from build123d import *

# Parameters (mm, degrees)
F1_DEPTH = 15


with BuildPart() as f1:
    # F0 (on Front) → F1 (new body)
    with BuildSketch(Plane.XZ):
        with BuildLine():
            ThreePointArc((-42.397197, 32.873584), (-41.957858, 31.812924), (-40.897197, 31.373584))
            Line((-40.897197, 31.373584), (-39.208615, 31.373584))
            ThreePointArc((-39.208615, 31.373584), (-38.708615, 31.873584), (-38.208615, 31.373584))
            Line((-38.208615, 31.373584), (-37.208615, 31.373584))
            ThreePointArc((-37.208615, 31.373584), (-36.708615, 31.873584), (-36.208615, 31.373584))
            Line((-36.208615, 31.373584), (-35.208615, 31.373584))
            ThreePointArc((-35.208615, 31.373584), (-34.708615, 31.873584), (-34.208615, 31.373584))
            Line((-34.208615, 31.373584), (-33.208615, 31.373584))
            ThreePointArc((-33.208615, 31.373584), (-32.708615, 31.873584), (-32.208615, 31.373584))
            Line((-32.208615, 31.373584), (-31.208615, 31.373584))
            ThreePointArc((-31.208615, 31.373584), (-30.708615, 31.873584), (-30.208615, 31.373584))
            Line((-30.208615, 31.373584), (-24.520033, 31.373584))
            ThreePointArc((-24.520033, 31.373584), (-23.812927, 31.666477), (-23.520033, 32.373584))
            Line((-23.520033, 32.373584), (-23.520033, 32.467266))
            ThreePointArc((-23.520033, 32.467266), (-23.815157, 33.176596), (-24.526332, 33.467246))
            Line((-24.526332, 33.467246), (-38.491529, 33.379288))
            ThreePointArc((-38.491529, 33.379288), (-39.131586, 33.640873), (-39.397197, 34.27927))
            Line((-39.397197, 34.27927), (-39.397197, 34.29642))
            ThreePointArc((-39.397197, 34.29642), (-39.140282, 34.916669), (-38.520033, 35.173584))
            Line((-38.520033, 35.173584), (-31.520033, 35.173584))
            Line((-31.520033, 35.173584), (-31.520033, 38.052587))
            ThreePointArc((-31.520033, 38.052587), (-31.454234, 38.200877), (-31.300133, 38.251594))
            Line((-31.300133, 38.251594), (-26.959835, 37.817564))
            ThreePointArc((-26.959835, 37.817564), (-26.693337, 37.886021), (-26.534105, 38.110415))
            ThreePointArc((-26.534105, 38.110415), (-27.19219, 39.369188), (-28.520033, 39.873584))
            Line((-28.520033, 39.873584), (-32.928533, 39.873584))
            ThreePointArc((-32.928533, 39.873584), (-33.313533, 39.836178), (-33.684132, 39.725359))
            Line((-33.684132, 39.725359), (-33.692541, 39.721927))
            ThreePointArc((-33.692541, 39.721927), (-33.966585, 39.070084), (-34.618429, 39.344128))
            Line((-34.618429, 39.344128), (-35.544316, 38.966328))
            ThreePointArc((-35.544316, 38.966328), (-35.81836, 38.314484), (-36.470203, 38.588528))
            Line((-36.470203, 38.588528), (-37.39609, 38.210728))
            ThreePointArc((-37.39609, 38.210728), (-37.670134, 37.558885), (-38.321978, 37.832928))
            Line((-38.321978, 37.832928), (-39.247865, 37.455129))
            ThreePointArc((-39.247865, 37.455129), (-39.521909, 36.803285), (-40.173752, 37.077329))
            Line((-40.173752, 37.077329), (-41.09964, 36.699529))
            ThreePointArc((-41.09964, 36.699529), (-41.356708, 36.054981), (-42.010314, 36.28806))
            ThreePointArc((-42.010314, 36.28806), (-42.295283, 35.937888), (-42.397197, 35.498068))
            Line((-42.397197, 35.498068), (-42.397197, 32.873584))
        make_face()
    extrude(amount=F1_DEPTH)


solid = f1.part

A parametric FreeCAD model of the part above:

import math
import FreeCAD as App
import Part
import Sketcher

V = App.Vector

doc = App.newDocument("Part")
body = doc.addObject("PartDesign::Body", "Body")

sketch1 = body.newObject("Sketcher::SketchObject", "Sketch")
sketch1.AttachmentSupport = (doc.getObject("XZ_Plane"), [""])
sketch1.MapMode = "FlatFace"
sketch1.addGeometry(Part.ArcOfCircle(Part.Circle(V(-40.897, 32.874, 0), V(0, 0, 1), 1.5), math.radians(180), math.radians(270)), False)
sketch1.addGeometry(Part.LineSegment(V(-40.897, 31.374, 0), V(-39.209, 31.374, 0)), False)
sketch1.addGeometry(Part.ArcOfCircle(Part.Circle(V(-38.709, 31.374, 0), V(0, 0, 1), 0.5), math.radians(0), math.radians(180)), False)
sketch1.addGeometry(Part.LineSegment(V(-38.209, 31.374, 0), V(-37.209, 31.374, 0)), False)
sketch1.addGeometry(Part.ArcOfCircle(Part.Circle(V(-36.709, 31.374, 0), V(0, 0, 1), 0.5), math.radians(0), math.radians(180)), False)
sketch1.addGeometry(Part.LineSegment(V(-36.209, 31.374, 0), V(-35.209, 31.374, 0)), False)
sketch1.addGeometry(Part.ArcOfCircle(Part.Circle(V(-34.709, 31.374, 0), V(0, 0, 1), 0.5), math.radians(0), math.radians(180)), False)
sketch1.addGeometry(Part.LineSegment(V(-34.209, 31.374, 0), V(-33.209, 31.374, 0)), False)
sketch1.addGeometry(Part.ArcOfCircle(Part.Circle(V(-32.709, 31.374, 0), V(0, 0, 1), 0.5), math.radians(0), math.radians(180)), False)
sketch1.addGeometry(Part.LineSegment(V(-32.209, 31.374, 0), V(-31.209, 31.374, 0)), False)
sketch1.addGeometry(Part.ArcOfCircle(Part.Circle(V(-30.709, 31.374, 0), V(0, 0, 1), 0.5), math.radians(0), math.radians(180)), False)
sketch1.addGeometry(Part.LineSegment(V(-30.209, 31.374, 0), V(-24.52, 31.374, 0)), False)
sketch1.addGeometry(Part.ArcOfCircle(Part.Circle(V(-24.52, 32.374, 0), V(0, 0, 1), 1), math.radians(-90), math.radians(0)), False)
sketch1.addGeometry(Part.LineSegment(V(-23.52, 32.374, 0), V(-23.52, 32.467, 0)), False)
sketch1.addGeometry(Part.ArcOfCircle(Part.Circle(V(-24.52, 32.467, 0), V(0, 0, 1), 1), math.radians(0), math.radians(90)), False)
sketch1.addGeometry(Part.LineSegment(V(-24.526, 33.467, 0), V(-38.492, 33.379, 0)), False)
sketch1.addGeometry(Part.ArcOfCircle(Part.Circle(V(-38.497, 34.279, 0), V(0, 0, 1), 0.9), math.radians(180), math.radians(270)), False)
sketch1.addGeometry(Part.LineSegment(V(-39.397, 34.279, 0), V(-39.397, 34.296, 0)), False)
sketch1.addGeometry(Part.ArcOfCircle(Part.Circle(V(-38.52, 34.296, 0), V(0, 0, 1), 0.877), math.radians(90), math.radians(180)), False)
sketch1.addGeometry(Part.LineSegment(V(-38.52, 35.174, 0), V(-31.52, 35.174, 0)), False)
sketch1.addGeometry(Part.LineSegment(V(-31.52, 35.174, 0), V(-31.52, 38.053, 0)), False)
sketch1.addGeometry(Part.ArcOfCircle(Part.Circle(V(-31.32, 38.053, 0), V(0, 0, 1), 0.2), math.radians(84), math.radians(180)), False)
sketch1.addGeometry(Part.LineSegment(V(-31.3, 38.252, 0), V(-26.96, 37.818, 0)), False)
sketch1.addGeometry(Part.ArcOfCircle(Part.Circle(V(-26.92, 38.216, 0), V(0, 0, 1), 0.4), math.radians(-96), math.radians(-15)), False)
sketch1.addGeometry(Part.ArcOfCircle(Part.Circle(V(-28.52, 37.874, 0), V(0, 0, 1), 2), math.radians(7), math.radians(90)), False)
sketch1.addGeometry(Part.LineSegment(V(-28.52, 39.874, 0), V(-32.929, 39.874, 0)), False)
sketch1.addGeometry(Part.ArcOfCircle(Part.Circle(V(-32.929, 37.874, 0), V(0, 0, 1), 2), math.radians(90), math.radians(112)), False)
sketch1.addGeometry(Part.LineSegment(V(-33.684, 39.725, 0), V(-33.693, 39.722, 0)), False)
sketch1.addGeometry(Part.ArcOfCircle(Part.Circle(V(-34.155, 39.533, 0), V(0, 0, 1), 0.5), math.radians(-158), math.radians(22)), False)
sketch1.addGeometry(Part.LineSegment(V(-34.618, 39.344, 0), V(-35.544, 38.966, 0)), False)
sketch1.addGeometry(Part.ArcOfCircle(Part.Circle(V(-36.007, 38.777, 0), V(0, 0, 1), 0.5), math.radians(-158), math.radians(22)), False)
sketch1.addGeometry(Part.LineSegment(V(-36.47, 38.589, 0), V(-37.396, 38.211, 0)), False)
sketch1.addGeometry(Part.ArcOfCircle(Part.Circle(V(-37.859, 38.022, 0), V(0, 0, 1), 0.5), math.radians(-158), math.radians(22)), False)
sketch1.addGeometry(Part.LineSegment(V(-38.322, 37.833, 0), V(-39.248, 37.455, 0)), False)
sketch1.addGeometry(Part.ArcOfCircle(Part.Circle(V(-39.711, 37.266, 0), V(0, 0, 1), 0.5), math.radians(-158), math.radians(22)), False)
sketch1.addGeometry(Part.LineSegment(V(-40.174, 37.077, 0), V(-41.1, 36.7, 0)), False)
sketch1.addGeometry(Part.ArcOfCircle(Part.Circle(V(-41.563, 36.511, 0), V(0, 0, 1), 0.5), math.radians(-154), math.radians(22)), False)
sketch1.addGeometry(Part.ArcOfCircle(Part.Circle(V(-41.397, 35.498, 0), V(0, 0, 1), 1), math.radians(128), math.radians(180)), False)
sketch1.addGeometry(Part.LineSegment(V(-42.397, 35.498, 0), V(-42.397, 32.874, 0)), False)
sketch1.addConstraint(Sketcher.Constraint("Tangent", 0, 2, 1, 1))
sketch1.addConstraint(Sketcher.Constraint("Coincident", 1, 2, 2, 2))
sketch1.addConstraint(Sketcher.Constraint("Coincident", 2, 1, 3, 1))
sketch1.addConstraint(Sketcher.Constraint("Coincident", 3, 2, 4, 2))
sketch1.addConstraint(Sketcher.Constraint("Coincident", 4, 1, 5, 1))
sketch1.addConstraint(Sketcher.Constraint("Coincident", 5, 2, 6, 2))
sketch1.addConstraint(Sketcher.Constraint("Coincident", 6, 1, 7, 1))
sketch1.addConstraint(Sketcher.Constraint("Coincident", 7, 2, 8, 2))
sketch1.addConstraint(Sketcher.Constraint("Coincident", 8, 1, 9, 1))
sketch1.addConstraint(Sketcher.Constraint("Coincident", 9, 2, 10, 2))
sketch1.addConstraint(Sketcher.Constraint("Coincident", 10, 1, 11, 1))
sketch1.addConstraint(Sketcher.Constraint("Tangent", 11, 2, 12, 1))
sketch1.addConstraint(Sketcher.Constraint("Tangent", 12, 2, 13, 1))
sketch1.addConstraint(Sketcher.Constraint("Tangent", 13, 2, 14, 1))
sketch1.addConstraint(Sketcher.Constraint("Tangent", 14, 2, 15, 1))
sketch1.addConstraint(Sketcher.Constraint("Tangent", 15, 2, 16, 2))
sketch1.addConstraint(Sketcher.Constraint("Tangent", 16, 1, 17, 1))
sketch1.addConstraint(Sketcher.Constraint("Tangent", 17, 2, 18, 2))
sketch1.addConstraint(Sketcher.Constraint("Tangent", 18, 1, 19, 1))
sketch1.addConstraint(Sketcher.Constraint("Coincident", 19, 2, 20, 1))
sketch1.addConstraint(Sketcher.Constraint("Coincident", 20, 2, 21, 2))
sketch1.addConstraint(Sketcher.Constraint("Coincident", 21, 1, 22, 1))
sketch1.addConstraint(Sketcher.Constraint("Coincident", 22, 2, 23, 1))
sketch1.addConstraint(Sketcher.Constraint("Coincident", 23, 2, 24, 1))
sketch1.addConstraint(Sketcher.Constraint("Tangent", 24, 2, 25, 1))
sketch1.addConstraint(Sketcher.Constraint("Tangent", 25, 2, 26, 1))
sketch1.addConstraint(Sketcher.Constraint("Coincident", 26, 2, 27, 1))
sketch1.addConstraint(Sketcher.Constraint("Coincident", 27, 2, 28, 2))
sketch1.addConstraint(Sketcher.Constraint("Coincident", 28, 1, 29, 1))
sketch1.addConstraint(Sketcher.Constraint("Coincident", 29, 2, 30, 2))
sketch1.addConstraint(Sketcher.Constraint("Coincident", 30, 1, 31, 1))
sketch1.addConstraint(Sketcher.Constraint("Coincident", 31, 2, 32, 2))
sketch1.addConstraint(Sketcher.Constraint("Coincident", 32, 1, 33, 1))
sketch1.addConstraint(Sketcher.Constraint("Coincident", 33, 2, 34, 2))
sketch1.addConstraint(Sketcher.Constraint("Coincident", 34, 1, 35, 1))
sketch1.addConstraint(Sketcher.Constraint("Coincident", 35, 2, 36, 2))
sketch1.addConstraint(Sketcher.Constraint("Coincident", 36, 1, 37, 1))
sketch1.addConstraint(Sketcher.Constraint("Tangent", 37, 2, 38, 1))
sketch1.addConstraint(Sketcher.Constraint("Tangent", 38, 2, 0, 1))
sketch1.addConstraint(Sketcher.Constraint("Horizontal", 1))
sketch1.addConstraint(Sketcher.Constraint("Horizontal", 3))
sketch1.addConstraint(Sketcher.Constraint("Horizontal", 5))
sketch1.addConstraint(Sketcher.Constraint("Horizontal", 7))
sketch1.addConstraint(Sketcher.Constraint("Horizontal", 9))
sketch1.addConstraint(Sketcher.Constraint("Horizontal", 11))
sketch1.addConstraint(Sketcher.Constraint("Vertical", 13))
sketch1.addConstraint(Sketcher.Constraint("Vertical", 17))
sketch1.addConstraint(Sketcher.Constraint("Horizontal", 19))
sketch1.addConstraint(Sketcher.Constraint("Vertical", 20))
sketch1.addConstraint(Sketcher.Constraint("Horizontal", 25))
sketch1.addConstraint(Sketcher.Constraint("Vertical", 38))
sketch1.addConstraint(Sketcher.Constraint("Equal", 2, 4))
sketch1.addConstraint(Sketcher.Constraint("Equal", 4, 6))
sketch1.addConstraint(Sketcher.Constraint("Equal", 6, 8))
sketch1.addConstraint(Sketcher.Constraint("Equal", 8, 10))
sketch1.addConstraint(Sketcher.Constraint("Equal", 12, 14))
sketch1.addConstraint(Sketcher.Constraint("Equal", 24, 26))
sketch1.addConstraint(Sketcher.Constraint("Equal", 10, 28))
sketch1.addConstraint(Sketcher.Constraint("Equal", 28, 30))
sketch1.addConstraint(Sketcher.Constraint("Equal", 30, 32))
sketch1.addConstraint(Sketcher.Constraint("Equal", 32, 34))
sketch1.addConstraint(Sketcher.Constraint("Equal", 34, 36))
sketch1.addConstraint(Sketcher.Constraint("Equal", 14, 37))
sketch1.addConstraint(Sketcher.Constraint("Parallel", 29, 31))
sketch1.addConstraint(Sketcher.Constraint("Parallel", 31, 33))
sketch1.addConstraint(Sketcher.Constraint("Parallel", 33, 35))
sketch1.addConstraint(Sketcher.Constraint("Horizontal", 2, 3, 4, 3))
sketch1.addConstraint(Sketcher.Constraint("Horizontal", 4, 3, 6, 3))
sketch1.addConstraint(Sketcher.Constraint("Horizontal", 6, 3, 8, 3))
sketch1.addConstraint(Sketcher.Constraint("Horizontal", 8, 3, 10, 3))
sketch1.addConstraint(Sketcher.Constraint("Horizontal", 10, 3, 0, 2))
sketch1.addConstraint(Sketcher.Constraint("Horizontal", 1, 2, 2, 1))
sketch1.addConstraint(Sketcher.Constraint("Horizontal", 3, 2, 4, 1))
sketch1.addConstraint(Sketcher.Constraint("Horizontal", 5, 2, 6, 1))
sketch1.addConstraint(Sketcher.Constraint("Horizontal", 7, 2, 8, 1))
sketch1.addConstraint(Sketcher.Constraint("Horizontal", 9, 2, 10, 1))
sketch1.addConstraint(Sketcher.Constraint("Horizontal", 21, 3, 20, 2))
sketch1.addConstraint(Sketcher.Constraint("Equal", 3, 5))
sketch1.addConstraint(Sketcher.Constraint("Equal", 5, 7))
sketch1.addConstraint(Sketcher.Constraint("Equal", 7, 9))
sketch1.addConstraint(Sketcher.Constraint("Equal", 29, 31))
sketch1.addConstraint(Sketcher.Constraint("Equal", 31, 33))
sketch1.addConstraint(Sketcher.Constraint("Equal", 33, 35))
sketch1.addConstraint(Sketcher.Constraint("Radius", 12, 1.000001))
sketch1.addConstraint(Sketcher.Constraint("Radius", 24, 2.000001))
sketch1.addConstraint(Sketcher.Constraint("Radius", 0, 1.499999))
sketch1.addConstraint(Sketcher.Constraint("Radius", 2, 0.5))
sketch1.addConstraint(Sketcher.Constraint("Radius", 16, 0.9))
sketch1.addConstraint(Sketcher.Constraint("Radius", 21, 0.2))
sketch1.addConstraint(Sketcher.Constraint("Radius", 23, 0.400002))
sketch1.addConstraint(Sketcher.Constraint("DistanceX", 3, 1, 3, 2, 1.0))
sketch1.addConstraint(Sketcher.Constraint("DistanceX", 19, 1, 19, 2, 7.0))
sketch1.addConstraint(Sketcher.Constraint("Distance", 29, 1.0))
sketch1.addConstraint(Sketcher.Constraint("DistanceX", 24, 3, 14, 3, 4.0))
sketch1.addConstraint(Sketcher.Constraint("DistanceX", 37, 3, 16, 1, 2.000001))
sketch1.addConstraint(Sketcher.Constraint("DistanceX", 20, 2, 24, 3, 2.999999))
sketch1.addConstraint(Sketcher.Constraint("DistanceX", 21, 3, 23, 3, 4.399998))
sketch1.addConstraint(Sketcher.Constraint("DistanceY", 12, 3, 24, 3, 5.499998))
sketch1.addConstraint(Sketcher.Constraint("DistanceY", 19, 2, 26, 3, 2.699999))
sketch1.addConstraint(Sketcher.Constraint("DistanceX", 25, 2, 25, 1, 4.4085))
sketch1.addConstraint(Sketcher.Constraint("Radius", 18, 0.877163))
sketch1.addConstraint(Sketcher.Constraint("DistanceX", 18, 3, 32, 3, 0.661))
sketch1.addConstraint(Sketcher.Constraint("DistanceX", 1, 1, 1, 2, 1.688582))
sketch1.addConstraint(Sketcher.Constraint("DistanceY", 17, 1, 17, 2, 0.01715))
sketch1.addConstraint(Sketcher.Constraint("DistanceX", 0, 3, -1, 1, 40.897198))
sketch1.addConstraint(Sketcher.Constraint("DistanceY", 30, 3, 28, 3, 0.7556))
sketch1.addConstraint(Sketcher.Constraint("DistanceY", 32, 3, 30, 3, 0.755599))
sketch1.addConstraint(Sketcher.Constraint("DistanceY", 34, 3, 32, 3, 0.7556))
sketch1.addConstraint(Sketcher.Constraint("DistanceY", 36, 3, 34, 3, 0.7556))
sketch1.addConstraint(Sketcher.Constraint("DistanceY", 16, 3, 37, 3, 1.218799))
sketch1.addConstraint(Sketcher.Constraint("DistanceX", 14, 2, 14, 3, 0.006298))
sketch1.addConstraint(Sketcher.Constraint("DistanceX", 21, 3, 21, 1, 0.0199))
sketch1.addConstraint(Sketcher.Constraint("DistanceX", 22, 2, 23, 3, 0.0398))
sketch1.addConstraint(Sketcher.Constraint("DistanceX", 26, 2, 25, 2, 0.755599))
sketch1.addConstraint(Sketcher.Constraint("DistanceY", 28, 3, 27, 2, 0.188899))
sketch1.addConstraint(Sketcher.Constraint("DistanceY", 28, 1, 28, 3, 0.1889))
sketch1.addConstraint(Sketcher.Constraint("DistanceY", 30, 3, 29, 2, 0.1889))
sketch1.addConstraint(Sketcher.Constraint("DistanceY", 30, 1, 30, 3, 0.1889))
sketch1.addConstraint(Sketcher.Constraint("DistanceY", 32, 1, 32, 3, 0.188901))
sketch1.addConstraint(Sketcher.Constraint("DistanceY", 34, 1, 34, 3, 0.1889))
sketch1.addConstraint(Sketcher.Constraint("DistanceY", 20, 1, 20, 2, 2.879003))
sketch1.addConstraint(Sketcher.Constraint("DistanceY", -1, 1, 16, 3, 34.27927))
sketch1.addConstraint(Sketcher.Constraint("DistanceY", -1, 1, 23, 3, 38.215581))
sketch1.addConstraint(Sketcher.Constraint("DistanceY", -1, 1, 32, 3, 38.021829))
pad1 = body.newObject("PartDesign::Pad", "Pad")
pad1.Profile = sketch1
pad1.Length = 15

doc.recompute()
